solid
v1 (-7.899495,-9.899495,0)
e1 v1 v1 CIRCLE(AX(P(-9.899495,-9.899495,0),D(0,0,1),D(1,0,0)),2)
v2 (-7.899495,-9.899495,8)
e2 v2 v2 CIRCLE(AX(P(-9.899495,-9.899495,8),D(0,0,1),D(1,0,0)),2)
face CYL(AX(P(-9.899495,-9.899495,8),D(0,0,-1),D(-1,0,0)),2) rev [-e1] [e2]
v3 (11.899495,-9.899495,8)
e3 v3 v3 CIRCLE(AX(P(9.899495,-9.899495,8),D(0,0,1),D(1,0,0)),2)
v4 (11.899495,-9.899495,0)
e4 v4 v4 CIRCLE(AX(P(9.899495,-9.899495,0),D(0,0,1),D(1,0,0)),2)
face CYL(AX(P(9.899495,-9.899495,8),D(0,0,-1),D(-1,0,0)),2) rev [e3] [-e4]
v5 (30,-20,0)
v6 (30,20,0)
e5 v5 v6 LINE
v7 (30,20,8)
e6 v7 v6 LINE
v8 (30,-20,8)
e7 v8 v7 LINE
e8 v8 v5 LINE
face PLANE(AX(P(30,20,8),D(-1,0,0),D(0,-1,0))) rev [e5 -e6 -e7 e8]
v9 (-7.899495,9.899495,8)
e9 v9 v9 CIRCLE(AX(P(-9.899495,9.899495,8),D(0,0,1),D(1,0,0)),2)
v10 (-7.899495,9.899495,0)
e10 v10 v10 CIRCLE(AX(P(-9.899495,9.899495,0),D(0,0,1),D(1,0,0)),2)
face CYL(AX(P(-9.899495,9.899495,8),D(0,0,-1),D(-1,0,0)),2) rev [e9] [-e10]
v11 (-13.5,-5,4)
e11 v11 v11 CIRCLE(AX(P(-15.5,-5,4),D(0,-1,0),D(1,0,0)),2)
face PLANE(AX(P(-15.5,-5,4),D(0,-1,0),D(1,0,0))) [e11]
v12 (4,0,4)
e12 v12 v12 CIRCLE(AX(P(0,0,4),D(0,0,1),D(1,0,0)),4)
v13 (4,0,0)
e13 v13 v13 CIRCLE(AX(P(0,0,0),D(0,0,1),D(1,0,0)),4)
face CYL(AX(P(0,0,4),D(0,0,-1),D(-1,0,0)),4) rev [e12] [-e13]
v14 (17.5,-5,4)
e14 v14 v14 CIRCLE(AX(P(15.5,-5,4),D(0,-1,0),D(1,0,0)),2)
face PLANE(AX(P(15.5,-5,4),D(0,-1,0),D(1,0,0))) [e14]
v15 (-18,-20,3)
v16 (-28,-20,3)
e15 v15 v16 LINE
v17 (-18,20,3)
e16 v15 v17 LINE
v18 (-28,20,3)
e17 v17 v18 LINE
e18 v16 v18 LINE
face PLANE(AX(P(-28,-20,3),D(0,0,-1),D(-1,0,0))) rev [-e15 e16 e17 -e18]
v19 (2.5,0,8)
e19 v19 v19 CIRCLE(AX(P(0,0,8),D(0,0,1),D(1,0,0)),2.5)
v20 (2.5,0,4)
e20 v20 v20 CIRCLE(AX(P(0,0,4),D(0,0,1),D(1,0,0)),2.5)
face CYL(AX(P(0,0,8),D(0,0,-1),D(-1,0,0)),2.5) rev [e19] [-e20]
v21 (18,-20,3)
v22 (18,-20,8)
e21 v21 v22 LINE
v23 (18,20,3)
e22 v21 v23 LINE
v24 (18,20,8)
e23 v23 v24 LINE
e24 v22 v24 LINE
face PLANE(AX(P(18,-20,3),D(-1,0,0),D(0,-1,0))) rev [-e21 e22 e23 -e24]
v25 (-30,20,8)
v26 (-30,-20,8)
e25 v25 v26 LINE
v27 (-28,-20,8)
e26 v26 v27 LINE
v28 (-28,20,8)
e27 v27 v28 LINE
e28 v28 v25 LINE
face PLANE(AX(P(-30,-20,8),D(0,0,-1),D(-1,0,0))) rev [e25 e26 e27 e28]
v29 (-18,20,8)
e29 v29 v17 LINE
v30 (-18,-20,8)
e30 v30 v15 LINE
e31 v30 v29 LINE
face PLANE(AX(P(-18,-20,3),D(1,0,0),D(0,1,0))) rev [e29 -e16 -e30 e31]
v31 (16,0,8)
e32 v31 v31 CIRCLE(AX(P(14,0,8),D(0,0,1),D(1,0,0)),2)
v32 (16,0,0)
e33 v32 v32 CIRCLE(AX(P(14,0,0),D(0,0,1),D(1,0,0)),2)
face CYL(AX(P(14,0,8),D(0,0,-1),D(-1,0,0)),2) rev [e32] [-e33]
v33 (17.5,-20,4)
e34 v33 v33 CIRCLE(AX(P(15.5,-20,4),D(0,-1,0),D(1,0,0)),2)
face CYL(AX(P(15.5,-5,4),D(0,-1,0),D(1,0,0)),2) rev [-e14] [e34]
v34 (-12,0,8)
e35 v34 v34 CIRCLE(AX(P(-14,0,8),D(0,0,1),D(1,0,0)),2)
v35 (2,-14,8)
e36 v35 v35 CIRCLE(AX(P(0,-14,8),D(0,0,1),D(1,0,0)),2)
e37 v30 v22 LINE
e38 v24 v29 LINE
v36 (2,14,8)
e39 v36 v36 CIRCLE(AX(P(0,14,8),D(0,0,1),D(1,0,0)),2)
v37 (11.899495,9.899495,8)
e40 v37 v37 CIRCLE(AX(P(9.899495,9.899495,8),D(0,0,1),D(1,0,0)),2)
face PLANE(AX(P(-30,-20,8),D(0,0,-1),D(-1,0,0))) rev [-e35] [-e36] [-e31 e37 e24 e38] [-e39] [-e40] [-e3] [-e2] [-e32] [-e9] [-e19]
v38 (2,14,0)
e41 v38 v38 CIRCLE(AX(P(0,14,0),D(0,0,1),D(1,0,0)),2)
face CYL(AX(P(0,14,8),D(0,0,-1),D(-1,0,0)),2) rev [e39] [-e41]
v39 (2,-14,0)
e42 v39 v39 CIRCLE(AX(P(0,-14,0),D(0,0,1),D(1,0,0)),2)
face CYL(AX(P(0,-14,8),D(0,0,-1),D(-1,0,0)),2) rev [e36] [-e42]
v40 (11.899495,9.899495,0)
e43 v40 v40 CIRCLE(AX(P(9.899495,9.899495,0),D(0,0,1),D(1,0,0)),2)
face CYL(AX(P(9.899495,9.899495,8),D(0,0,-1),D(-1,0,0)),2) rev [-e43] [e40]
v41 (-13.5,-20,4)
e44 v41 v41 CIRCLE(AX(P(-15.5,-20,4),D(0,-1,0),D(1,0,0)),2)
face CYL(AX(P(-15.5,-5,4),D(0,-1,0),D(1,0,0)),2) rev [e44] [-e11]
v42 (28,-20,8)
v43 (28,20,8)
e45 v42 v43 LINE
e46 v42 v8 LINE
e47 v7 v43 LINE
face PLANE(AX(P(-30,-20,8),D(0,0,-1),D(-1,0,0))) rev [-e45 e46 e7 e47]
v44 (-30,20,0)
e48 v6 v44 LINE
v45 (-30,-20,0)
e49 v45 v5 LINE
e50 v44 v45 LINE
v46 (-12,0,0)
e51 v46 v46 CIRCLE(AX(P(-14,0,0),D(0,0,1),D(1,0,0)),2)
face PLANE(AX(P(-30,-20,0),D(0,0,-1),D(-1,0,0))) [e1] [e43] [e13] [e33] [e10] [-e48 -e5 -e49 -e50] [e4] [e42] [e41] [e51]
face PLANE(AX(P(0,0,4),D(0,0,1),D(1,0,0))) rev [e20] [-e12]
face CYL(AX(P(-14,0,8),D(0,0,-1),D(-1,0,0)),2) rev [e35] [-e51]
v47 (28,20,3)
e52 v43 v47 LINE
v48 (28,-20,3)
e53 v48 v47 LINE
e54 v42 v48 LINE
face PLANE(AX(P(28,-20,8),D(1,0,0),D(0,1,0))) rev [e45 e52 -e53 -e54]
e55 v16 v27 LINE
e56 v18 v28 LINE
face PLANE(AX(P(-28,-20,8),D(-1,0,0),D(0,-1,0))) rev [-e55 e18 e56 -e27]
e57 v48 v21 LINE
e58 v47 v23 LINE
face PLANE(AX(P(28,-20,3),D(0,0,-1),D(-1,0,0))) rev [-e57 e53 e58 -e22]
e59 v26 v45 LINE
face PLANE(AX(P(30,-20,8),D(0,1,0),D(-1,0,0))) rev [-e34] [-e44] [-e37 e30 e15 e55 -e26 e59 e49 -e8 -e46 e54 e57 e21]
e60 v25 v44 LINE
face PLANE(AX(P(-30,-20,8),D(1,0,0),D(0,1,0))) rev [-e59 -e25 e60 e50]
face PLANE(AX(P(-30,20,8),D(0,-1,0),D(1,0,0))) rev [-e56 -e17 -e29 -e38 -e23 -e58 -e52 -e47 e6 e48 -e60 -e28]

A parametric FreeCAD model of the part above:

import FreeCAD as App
import Part
import Sketcher

V = App.Vector
Q = App.Units.Quantity


def add_polygon(sketch, points):
    """Adds a closed chain of lines whose ends are joined by coincident constraints."""
    first, n = sketch.GeometryCount, len(points)
    for a, b in zip(points, points[1:] + points[:1]):
        sketch.addGeometry(Part.LineSegment(App.Vector(*a, 0), App.Vector(*b, 0)), False)
    for i in range(n):
        sketch.addConstraint(Sketcher.Constraint("Coincident", first + i, 2, first + (i + 1) % n, 1))

doc = App.newDocument("Part")
params = doc.addObject("Spreadsheet::Sheet", "Params")
for row, (alias, value) in enumerate([
    ("sketch1_diameter", "4 mm"),
    ("sketch1_diameter2", "5 mm"),
    ("sketch1_width", "60 mm"),
    ("sketch1_height", "40 mm"),
    ("pad1_length", "8 mm"),
    ("sketch2_diameter", "8 mm"),
    ("pocket1_length", "4 mm"),
    ("sketch3_diameter", "4 mm"),
    ("pocket2_length", "15 mm"),
    ("sketch4_width", "10 mm"),
    ("sketch4_height", "5 mm"),
], start=1):
    params.set(f"A{row}", alias)
    params.set(f"B{row}", "=" + value)
    params.setAlias(f"B{row}", alias)

body = doc.addObject("PartDesign::Body", "Body")

# Sketch on XY plane
sketch1 = doc.addObject("Sketcher::SketchObject", "Sketch")
body.addObject(sketch1)
sketch1.AttachmentSupport = (doc.XY_Plane, [""])
sketch1.MapMode = "FlatFace"
add_polygon(sketch1, [(-30, 20), (-30, -20), (30, -20), (30, 20)])  # lines 0-3
sketch1.addGeometry(Part.Circle(V(-9.9, -9.9, 0), V(0, 0, 1), 2), False)  # 4
sketch1.addGeometry(Part.Circle(V(0, -14, 0), V(0, 0, 1), 2), False)  # 5
sketch1.addGeometry(Part.Circle(V(9.9, -9.9, 0), V(0, 0, 1), 2), False)  # 6
sketch1.addGeometry(Part.Circle(V(-14, 0, 0), V(0, 0, 1), 2), False)  # 7
sketch1.addGeometry(Part.Circle(V(-9.9, 9.9, 0), V(0, 0, 1), 2), False)  # 8
sketch1.addGeometry(Part.Circle(V(0, 0, 0), V(0, 0, 1), 2.5), False)  # 9
sketch1.addGeometry(Part.Circle(V(14, 0, 0), V(0, 0, 1), 2), False)  # 10
sketch1.addGeometry(Part.Circle(V(0, 14, 0), V(0, 0, 1), 2), False)  # 11
sketch1.addGeometry(Part.Circle(V(9.9, 9.9, 0), V(0, 0, 1), 2), False)  # 12
sketch1.addConstraint(Sketcher.Constraint("Vertical", 0))
sketch1.addConstraint(Sketcher.Constraint("Horizontal", 1))
sketch1.addConstraint(Sketcher.Constraint("Vertical", 2))
sketch1.addConstraint(Sketcher.Constraint("Horizontal", 3))
sketch1.addConstraint(Sketcher.Constraint("Coincident", 9, 3, -1, 1))
sketch1.addConstraint(Sketcher.Constraint("Equal", 4, 5))
sketch1.addConstraint(Sketcher.Constraint("Equal", 5, 6))
sketch1.addConstraint(Sketcher.Constraint("Equal", 6, 7))
sketch1.addConstraint(Sketcher.Constraint("Equal", 7, 8))
sketch1.addConstraint(Sketcher.Constraint("Equal", 8, 10))
sketch1.addConstraint(Sketcher.Constraint("Equal", 10, 11))
sketch1.addConstraint(Sketcher.Constraint("Equal", 11, 12))
sketch1.addConstraint(Sketcher.Constraint("Symmetric", 6, 3, 8, 3, -1, 1))
sketch1.addConstraint(Sketcher.Constraint("Symmetric", 7, 3, 10, 3, -1, 1))
sketch1.addConstraint(Sketcher.Constraint("Symmetric", 5, 3, 11, 3, -1, 1))
sketch1.addConstraint(Sketcher.Constraint("Symmetric", 4, 3, 12, 3, -1, 1))
sketch1.addConstraint(Sketcher.Constraint("Symmetric", 0, 2, 2, 2, -1, 1))
sketch1.addConstraint(Sketcher.Constraint("Symmetric", 4, 3, 6, 3, -2))
sketch1.addConstraint(Sketcher.Constraint("PointOnObject", 5, 3, -2))
sketch1.addConstraint(Sketcher.Constraint("PointOnObject", 7, 3, -1))
sketch1.addConstraint(Sketcher.Constraint("Diameter", 4, Q("4 mm")))
sketch1.addConstraint(Sketcher.Constraint("Diameter", 9, Q("5 mm")))
sketch1.addConstraint(Sketcher.Constraint("DistanceX", 1, 1, 1, 2, Q("60 mm")))
sketch1.addConstraint(Sketcher.Constraint("DistanceY", 0, 2, 0, 1, Q("40 mm")))
sketch1.addConstraint(Sketcher.Constraint("DistanceY", 5, 3, -1, 1, Q("14 mm")))
sketch1.addConstraint(Sketcher.Constraint("DistanceX", 7, 3, -1, 1, Q("14 mm")))
sketch1.addConstraint(Sketcher.Constraint("DistanceX", 4, 3, 6, 3, Q("19.79899 mm")))
sketch1.addConstraint(Sketcher.Constraint("DistanceY", 4, 3, 8, 3, Q("19.79899 mm")))
sketch1.setExpression("Constraints[24]", "Params.sketch1_diameter")
sketch1.setExpression("Constraints[25]", "Params.sketch1_diameter2")
sketch1.setExpression("Constraints[26]", "Params.sketch1_width")
sketch1.setExpression("Constraints[27]", "Params.sketch1_height")
pad1 = doc.addObject("PartDesign::Pad", "Pad")
body.addObject(pad1)
pad1.Profile = sketch1
pad1.setExpression("Length", "Params.pad1_length")

# Sketch on XY plane
sketch2 = doc.addObject("Sketcher::SketchObject", "Sketch001")
body.addObject(sketch2)
sketch2.AttachmentSupport = (doc.XY_Plane, [""])
sketch2.MapMode = "FlatFace"
sketch2.addGeometry(Part.Circle(V(0, 0, 0), V(0, 0, 1), 4), False)
sketch2.addConstraint(Sketcher.Constraint("Coincident", 0, 3, -1, 1))
sketch2.addConstraint(Sketcher.Constraint("Diameter", 0, Q("8 mm")))
sketch2.setExpression("Constraints[1]", "Params.sketch2_diameter")
pocket1 = doc.addObject("PartDesign::Pocket", "Pocket")
body.addObject(pocket1)
pocket1.Profile = sketch2
pocket1.setExpression("Length", "Params.pocket1_length")
pocket1.Reversed = True

# Sketch on XZ plane
sketch3 = doc.addObject("Sketcher::SketchObject", "Sketch002")
body.addObject(sketch3)
sketch3.AttachmentSupport = (doc.XZ_Plane, [""])
sketch3.MapMode = "FlatFace"
sketch3.AttachmentOffset = App.Placement(V(0, 0, 20), App.Rotation())
sketch3.addGeometry(Part.Circle(V(-15.5, 4, 0), V(0, 0, 1), 2), False)
sketch3.addGeometry(Part.Circle(V(15.5, 4, 0), V(0, 0, 1), 2), False)
sketch3.addConstraint(Sketcher.Constraint("Equal", 0, 1))
sketch3.addConstraint(Sketcher.Constraint("Symmetric", 0, 3, 1, 3, -2))
sketch3.addConstraint(Sketcher.Constraint("Diameter", 0, Q("4 mm")))
sketch3.addConstraint(Sketcher.Constraint("DistanceY", -1, 1, 0, 3, Q("4 mm")))
sketch3.addConstraint(Sketcher.Constraint("DistanceX", 0, 3, 1, 3, Q("31 mm")))
sketch3.setExpression("Constraints[2]", "Params.sketch3_diameter")
pocket2 = doc.addObject("PartDesign::Pocket", "Pocket001")
body.addObject(pocket2)
pocket2.Profile = sketch3
pocket2.setExpression("Length", "Params.pocket2_length")

# Sketch on XZ plane
sketch4 = doc.addObject("Sketcher::SketchObject", "Sketch003")
body.addObject(sketch4)
sketch4.AttachmentSupport = (doc.XZ_Plane, [""])
sketch4.MapMode = "FlatFace"
sketch4.AttachmentOffset = App.Placement(V(0, 0, -20), App.Rotation())
add_polygon(sketch4, [(-28, 3), (-28, 8), (-18, 8), (-18, 3)])  # lines 0-3
add_polygon(sketch4, [(18, 3), (18, 8), (28, 8), (28, 3)])  # lines 4-7
sketch4.addConstraint(Sketcher.Constraint("Vertical", 0))
sketch4.addConstraint(Sketcher.Constraint("Horizontal", 1))
sketch4.addConstraint(Sketcher.Constraint("Vertical", 2))
sketch4.addConstraint(Sketcher.Constraint("Horizontal", 3))
sketch4.addConstraint(Sketcher.Constraint("Vertical", 4))
sketch4.addConstraint(Sketcher.Constraint("Horizontal", 5))
sketch4.addConstraint(Sketcher.Constraint("Vertical", 6))
sketch4.addConstraint(Sketcher.Constraint("Horizontal", 7))
sketch4.addConstraint(Sketcher.Constraint("Symmetric", 1, 2, 4, 2, -2))
sketch4.addConstraint(Sketcher.Constraint("Symmetric", 3, 2, 6, 2, -2))
sketch4.addConstraint(Sketcher.Constraint("DistanceX", 1, 1, 1, 2, Q("10 mm")))
sketch4.addConstraint(Sketcher.Constraint("DistanceY", 0, 1, 0, 2, Q("5 mm")))
sketch4.addConstraint(Sketcher.Constraint("DistanceX", 0, 2, -1, 1, Q("28 mm")))
sketch4.addConstraint(Sketcher.Constraint("DistanceY", -1, 1, 0, 2, Q("8 mm")))
sketch4.setExpression("Constraints[18]", "Params.sketch4_width")
sketch4.setExpression("Constraints[19]", "Params.sketch4_height")
pocket3 = doc.addObject("PartDesign::Pocket", "Pocket002")
body.addObject(pocket3)
pocket3.Profile = sketch4
pocket3.Type = "ThroughAll"
pocket3.Reversed = True

doc.recompute()
